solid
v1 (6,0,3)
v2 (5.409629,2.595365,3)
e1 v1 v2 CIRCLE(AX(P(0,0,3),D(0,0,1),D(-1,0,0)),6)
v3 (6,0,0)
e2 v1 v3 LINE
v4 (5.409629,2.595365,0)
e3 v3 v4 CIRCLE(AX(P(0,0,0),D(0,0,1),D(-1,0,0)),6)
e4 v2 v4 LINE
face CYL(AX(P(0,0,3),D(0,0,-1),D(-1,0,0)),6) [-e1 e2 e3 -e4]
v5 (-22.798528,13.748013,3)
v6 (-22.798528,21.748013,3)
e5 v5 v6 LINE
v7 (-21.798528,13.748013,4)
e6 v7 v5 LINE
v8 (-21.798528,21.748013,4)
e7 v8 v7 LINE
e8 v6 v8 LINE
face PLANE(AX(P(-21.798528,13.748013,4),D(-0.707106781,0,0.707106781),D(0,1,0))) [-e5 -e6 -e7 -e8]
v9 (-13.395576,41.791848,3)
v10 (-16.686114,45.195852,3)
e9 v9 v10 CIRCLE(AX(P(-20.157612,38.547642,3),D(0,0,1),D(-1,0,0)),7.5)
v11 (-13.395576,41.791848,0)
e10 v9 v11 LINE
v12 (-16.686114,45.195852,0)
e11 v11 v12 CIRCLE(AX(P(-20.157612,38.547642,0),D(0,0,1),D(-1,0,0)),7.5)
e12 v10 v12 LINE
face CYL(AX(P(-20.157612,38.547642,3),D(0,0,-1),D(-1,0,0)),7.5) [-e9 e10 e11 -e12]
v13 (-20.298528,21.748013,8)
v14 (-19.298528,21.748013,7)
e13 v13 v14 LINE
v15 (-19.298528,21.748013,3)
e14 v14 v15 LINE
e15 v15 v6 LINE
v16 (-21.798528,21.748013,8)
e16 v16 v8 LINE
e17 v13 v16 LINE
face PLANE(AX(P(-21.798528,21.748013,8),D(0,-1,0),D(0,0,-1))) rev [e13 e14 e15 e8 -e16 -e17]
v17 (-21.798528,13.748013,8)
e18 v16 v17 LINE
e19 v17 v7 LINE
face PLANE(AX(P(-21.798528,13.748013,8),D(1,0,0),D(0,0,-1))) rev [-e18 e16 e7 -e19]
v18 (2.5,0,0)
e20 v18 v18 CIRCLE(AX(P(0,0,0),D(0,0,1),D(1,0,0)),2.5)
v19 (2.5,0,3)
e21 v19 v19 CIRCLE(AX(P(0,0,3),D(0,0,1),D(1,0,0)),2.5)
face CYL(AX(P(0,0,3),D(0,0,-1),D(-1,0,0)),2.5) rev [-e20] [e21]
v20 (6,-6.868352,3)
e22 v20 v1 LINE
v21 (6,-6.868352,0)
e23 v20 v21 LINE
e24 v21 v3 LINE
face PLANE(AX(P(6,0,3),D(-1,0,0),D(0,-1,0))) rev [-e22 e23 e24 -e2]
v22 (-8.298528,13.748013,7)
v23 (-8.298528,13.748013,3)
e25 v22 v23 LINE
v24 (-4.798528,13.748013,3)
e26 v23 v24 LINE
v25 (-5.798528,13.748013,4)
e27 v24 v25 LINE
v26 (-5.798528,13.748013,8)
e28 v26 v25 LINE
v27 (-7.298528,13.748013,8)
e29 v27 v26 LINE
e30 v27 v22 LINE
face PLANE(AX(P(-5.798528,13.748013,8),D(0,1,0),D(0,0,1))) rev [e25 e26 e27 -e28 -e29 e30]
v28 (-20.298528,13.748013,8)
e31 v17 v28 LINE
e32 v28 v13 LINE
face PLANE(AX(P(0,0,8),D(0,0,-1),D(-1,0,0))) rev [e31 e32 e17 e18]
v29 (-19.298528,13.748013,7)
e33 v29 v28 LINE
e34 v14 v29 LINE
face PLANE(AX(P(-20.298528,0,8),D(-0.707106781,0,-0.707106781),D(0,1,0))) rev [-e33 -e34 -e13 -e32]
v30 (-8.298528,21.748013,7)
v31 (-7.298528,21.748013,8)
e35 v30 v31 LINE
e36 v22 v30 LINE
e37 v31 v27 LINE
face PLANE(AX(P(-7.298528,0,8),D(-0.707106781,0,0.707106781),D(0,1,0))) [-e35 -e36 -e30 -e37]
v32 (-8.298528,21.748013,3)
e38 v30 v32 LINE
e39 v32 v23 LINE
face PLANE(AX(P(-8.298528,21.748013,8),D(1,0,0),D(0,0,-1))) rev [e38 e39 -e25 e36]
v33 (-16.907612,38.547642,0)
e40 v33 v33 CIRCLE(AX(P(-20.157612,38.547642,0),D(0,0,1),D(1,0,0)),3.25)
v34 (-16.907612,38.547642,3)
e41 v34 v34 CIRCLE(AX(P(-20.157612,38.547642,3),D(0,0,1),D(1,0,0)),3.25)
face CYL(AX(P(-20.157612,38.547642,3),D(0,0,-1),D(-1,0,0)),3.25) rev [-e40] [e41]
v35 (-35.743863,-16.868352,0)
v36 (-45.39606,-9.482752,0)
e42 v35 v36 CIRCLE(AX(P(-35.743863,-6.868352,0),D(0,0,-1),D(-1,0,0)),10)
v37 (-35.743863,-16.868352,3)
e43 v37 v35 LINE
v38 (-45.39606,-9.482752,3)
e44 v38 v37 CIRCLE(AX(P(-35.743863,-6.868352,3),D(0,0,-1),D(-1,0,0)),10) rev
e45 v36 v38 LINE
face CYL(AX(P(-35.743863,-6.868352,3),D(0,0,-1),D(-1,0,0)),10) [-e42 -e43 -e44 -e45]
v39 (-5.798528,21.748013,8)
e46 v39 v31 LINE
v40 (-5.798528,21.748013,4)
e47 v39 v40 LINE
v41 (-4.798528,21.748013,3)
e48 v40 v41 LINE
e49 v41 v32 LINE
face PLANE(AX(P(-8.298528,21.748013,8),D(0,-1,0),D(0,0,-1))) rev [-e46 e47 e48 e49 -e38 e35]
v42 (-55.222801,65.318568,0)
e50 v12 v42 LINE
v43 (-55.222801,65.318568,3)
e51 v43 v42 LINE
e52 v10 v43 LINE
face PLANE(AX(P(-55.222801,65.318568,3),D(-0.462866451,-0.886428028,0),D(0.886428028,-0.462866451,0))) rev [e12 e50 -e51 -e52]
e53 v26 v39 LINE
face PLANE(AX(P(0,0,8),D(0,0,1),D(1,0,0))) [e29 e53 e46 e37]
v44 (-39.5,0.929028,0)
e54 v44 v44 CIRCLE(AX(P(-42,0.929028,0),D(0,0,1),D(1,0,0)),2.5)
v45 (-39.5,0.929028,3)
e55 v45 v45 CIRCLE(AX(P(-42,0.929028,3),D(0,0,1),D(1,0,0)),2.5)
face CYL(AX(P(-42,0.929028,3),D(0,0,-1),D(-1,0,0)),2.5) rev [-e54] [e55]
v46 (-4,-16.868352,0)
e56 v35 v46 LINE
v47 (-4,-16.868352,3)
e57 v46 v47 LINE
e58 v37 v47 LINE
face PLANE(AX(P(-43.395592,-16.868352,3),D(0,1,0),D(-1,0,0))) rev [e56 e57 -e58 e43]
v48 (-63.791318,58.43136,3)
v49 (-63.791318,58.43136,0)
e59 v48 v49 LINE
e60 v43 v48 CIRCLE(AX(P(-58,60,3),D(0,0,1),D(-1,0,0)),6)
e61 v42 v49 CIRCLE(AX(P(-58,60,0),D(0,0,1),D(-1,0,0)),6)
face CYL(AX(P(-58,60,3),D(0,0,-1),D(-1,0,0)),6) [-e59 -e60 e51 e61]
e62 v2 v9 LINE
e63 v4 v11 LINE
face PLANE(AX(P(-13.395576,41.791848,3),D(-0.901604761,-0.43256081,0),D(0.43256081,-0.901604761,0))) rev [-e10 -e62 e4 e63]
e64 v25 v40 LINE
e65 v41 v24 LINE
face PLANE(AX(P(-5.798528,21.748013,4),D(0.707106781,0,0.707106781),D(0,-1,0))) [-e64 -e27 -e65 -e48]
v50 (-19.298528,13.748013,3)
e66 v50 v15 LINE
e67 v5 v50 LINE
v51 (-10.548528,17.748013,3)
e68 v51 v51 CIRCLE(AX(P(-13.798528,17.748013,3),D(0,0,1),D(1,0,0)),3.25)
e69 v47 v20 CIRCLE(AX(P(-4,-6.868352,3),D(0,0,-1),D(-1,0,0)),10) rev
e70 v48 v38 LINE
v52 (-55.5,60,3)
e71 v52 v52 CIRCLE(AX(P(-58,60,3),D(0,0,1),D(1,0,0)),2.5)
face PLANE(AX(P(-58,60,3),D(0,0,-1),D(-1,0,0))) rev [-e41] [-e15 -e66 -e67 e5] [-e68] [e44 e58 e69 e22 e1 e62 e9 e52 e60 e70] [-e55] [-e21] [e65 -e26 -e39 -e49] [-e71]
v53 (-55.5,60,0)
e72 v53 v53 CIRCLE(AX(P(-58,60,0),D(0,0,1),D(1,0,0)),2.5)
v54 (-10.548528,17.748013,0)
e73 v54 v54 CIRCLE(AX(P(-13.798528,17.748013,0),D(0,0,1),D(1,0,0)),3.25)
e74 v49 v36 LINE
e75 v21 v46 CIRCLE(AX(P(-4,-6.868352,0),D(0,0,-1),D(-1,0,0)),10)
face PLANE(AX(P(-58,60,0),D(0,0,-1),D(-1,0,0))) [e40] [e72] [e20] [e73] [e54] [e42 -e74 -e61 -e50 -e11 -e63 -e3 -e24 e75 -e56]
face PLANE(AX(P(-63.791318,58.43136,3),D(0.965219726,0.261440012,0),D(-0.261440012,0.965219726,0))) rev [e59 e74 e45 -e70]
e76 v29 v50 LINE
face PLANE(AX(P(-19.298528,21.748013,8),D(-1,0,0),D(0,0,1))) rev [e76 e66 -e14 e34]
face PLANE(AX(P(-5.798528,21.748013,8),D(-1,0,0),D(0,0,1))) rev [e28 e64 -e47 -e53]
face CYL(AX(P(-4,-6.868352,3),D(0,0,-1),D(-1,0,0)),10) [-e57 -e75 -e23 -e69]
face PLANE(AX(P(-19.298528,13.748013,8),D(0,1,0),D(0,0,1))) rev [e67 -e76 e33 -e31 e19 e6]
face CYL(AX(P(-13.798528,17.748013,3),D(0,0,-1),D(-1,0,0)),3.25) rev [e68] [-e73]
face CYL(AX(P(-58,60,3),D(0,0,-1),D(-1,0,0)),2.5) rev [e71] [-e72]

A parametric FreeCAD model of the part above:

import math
import FreeCAD as App
import Part
import Sketcher
from FreeCAD import Vector


def edges_at(feature, points):
    """Names of the edges that pass closest to the given points."""
    edges = feature.Shape.Edges
    near = lambda p: min(range(len(edges)), key=lambda i: edges[i].distToShape(Part.Vertex(*p))[0])
    return sorted({f"Edge{near(p) + 1}" for p in points})

doc = App.newDocument("Part")
body = doc.addObject("PartDesign::Body", "Body")

sketch1 = body.newObject("Sketcher::SketchObject", "Sketch")
sketch1.AttachmentSupport = (doc.getObject("XY_Plane"), [""])
sketch1.MapMode = "FlatFace"
sketch1.addGeometry(Part.LineSegment(Vector(-63.8, 58.4, 0), Vector(-43.4, -16.9, 0)), False)
sketch1.addGeometry(Part.LineSegment(Vector(-43.4, -16.9, 0), Vector(6, -16.9, 0)), False)
sketch1.addGeometry(Part.LineSegment(Vector(6, -16.9, 0), Vector(6, 0, 0)), False)
sketch1.addGeometry(Part.ArcOfCircle(Part.Circle(Vector(0, 0, 0), Vector(0, 0, 1), 6), math.radians(0), math.radians(26)), False)
sketch1.addGeometry(Part.LineSegment(Vector(5.4, 2.6, 0), Vector(-13.4, 41.8, 0)), False)
sketch1.addGeometry(Part.ArcOfCircle(Part.Circle(Vector(-20.2, 38.5, 0), Vector(0, 0, 1), 7.5), math.radians(26), math.radians(62)), False)
sketch1.addGeometry(Part.LineSegment(Vector(-16.7, 45.2, 0), Vector(-55.2, 65.3, 0)), False)
sketch1.addGeometry(Part.ArcOfCircle(Part.Circle(Vector(-58, 60, 0), Vector(0, 0, 1), 6), math.radians(62), math.radians(195)), False)
sketch1.addGeometry(Part.Circle(Vector(-42, 0.9, 0), Vector(0, 0, 1), 2.5), False)
sketch1.addGeometry(Part.Circle(Vector(0, 0, 0), Vector(0, 0, 1), 2.5), False)
sketch1.addGeometry(Part.Circle(Vector(-13.8, 17.7, 0), Vector(0, 0, 1), 3.2), False)
sketch1.addGeometry(Part.Circle(Vector(-58, 60, 0), Vector(0, 0, 1), 2.5), False)
sketch1.addGeometry(Part.Circle(Vector(-20.2, 38.5, 0), Vector(0, 0, 1), 3.2), False)
sketch1.addConstraint(Sketcher.Constraint("Coincident", 0, 2, 1, 1))
sketch1.addConstraint(Sketcher.Constraint("Coincident", 1, 2, 2, 1))
sketch1.addConstraint(Sketcher.Constraint("Tangent", 2, 2, 3, 1))
sketch1.addConstraint(Sketcher.Constraint("Tangent", 3, 2, 4, 1))
sketch1.addConstraint(Sketcher.Constraint("Tangent", 4, 2, 5, 1))
sketch1.addConstraint(Sketcher.Constraint("Tangent", 5, 2, 6, 1))
sketch1.addConstraint(Sketcher.Constraint("Tangent", 6, 2, 7, 1))
sketch1.addConstraint(Sketcher.Constraint("Tangent", 7, 2, 0, 1))
sketch1.addConstraint(Sketcher.Constraint("Horizontal", 1))
sketch1.addConstraint(Sketcher.Constraint("Vertical", 2))
sketch1.addConstraint(Sketcher.Constraint("Coincident", 3, 3, -1, 1))
sketch1.addConstraint(Sketcher.Constraint("Coincident", 9, 3, -1, 1))
sketch1.addConstraint(Sketcher.Constraint("Coincident", 11, 3, 7, 3))
sketch1.addConstraint(Sketcher.Constraint("Coincident", 12, 3, 5, 3))
sketch1.addConstraint(Sketcher.Constraint("Equal", 3, 7))
sketch1.addConstraint(Sketcher.Constraint("Equal", 8, 9))
sketch1.addConstraint(Sketcher.Constraint("Equal", 9, 11))
sketch1.addConstraint(Sketcher.Constraint("Equal", 10, 12))
sketch1.addConstraint(Sketcher.Constraint("Equal", 4, 6))
sketch1.addConstraint(Sketcher.Constraint("Diameter", 8, 5.0))
sketch1.addConstraint(Sketcher.Constraint("Radius", 3, 6.0))
sketch1.addConstraint(Sketcher.Constraint("Diameter", 10, 6.5))
sketch1.addConstraint(Sketcher.Constraint("Radius", 5, 7.5))
sketch1.addConstraint(Sketcher.Constraint("DistanceX", 7, 3, -1, 1, 58.0))
sketch1.addConstraint(Sketcher.Constraint("DistanceY", -1, 1, 7, 3, 60.0))
sketch1.addConstraint(Sketcher.Constraint("DistanceX", 8, 3, -1, 1, 42.0))
sketch1.addConstraint(Sketcher.Constraint("DistanceX", 1, 1, 1, 2, 49.395592))
sketch1.addConstraint(Sketcher.Constraint("DistanceX", 6, 2, -1, 1, 55.222801))
sketch1.addConstraint(Sketcher.Constraint("DistanceY", 2, 1, 2, 2, 16.868352))
sketch1.addConstraint(Sketcher.Constraint("DistanceY", 10, 3, 5, 3, 20.799628))
sketch1.addConstraint(Sketcher.Constraint("DistanceY", 0, 2, 8, 3, 17.79738))
sketch1.addConstraint(Sketcher.Constraint("DistanceX", 10, 3, 4, 2, 0.402951))
pad1 = body.newObject("PartDesign::Pad", "Pad")
pad1.Profile = sketch1
pad1.Length = 3

sketch2 = body.newObject("Sketcher::SketchObject", "Sketch001")
sketch2.AttachmentSupport = (doc.getObject("XY_Plane"), [""])
sketch2.MapMode = "FlatFace"
sketch2.AttachmentOffset = App.Placement(Vector(0, 0, 3), App.Rotation())
sketch2.addGeometry(Part.LineSegment(Vector(-8.3, 21.7, 0), Vector(-8.3, 13.7, 0)), False)
sketch2.addGeometry(Part.LineSegment(Vector(-8.3, 13.7, 0), Vector(-5.8, 13.7, 0)), False)
sketch2.addGeometry(Part.LineSegment(Vector(-5.8, 13.7, 0), Vector(-5.8, 21.7, 0)), False)
sketch2.addGeometry(Part.LineSegment(Vector(-5.8, 21.7, 0), Vector(-8.3, 21.7, 0)), False)
sketch2.addGeometry(Part.LineSegment(Vector(-21.8, 21.7, 0), Vector(-21.8, 13.7, 0)), False)
sketch2.addGeometry(Part.LineSegment(Vector(-21.8, 13.7, 0), Vector(-19.3, 13.7, 0)), False)
sketch2.addGeometry(Part.LineSegment(Vector(-19.3, 13.7, 0), Vector(-19.3, 21.7, 0)), False)
sketch2.addGeometry(Part.LineSegment(Vector(-19.3, 21.7, 0), Vector(-21.8, 21.7, 0)), False)
sketch2.addConstraint(Sketcher.Constraint("Coincident", 0, 2, 1, 1))
sketch2.addConstraint(Sketcher.Constraint("Coincident", 1, 2, 2, 1))
sketch2.addConstraint(Sketcher.Constraint("Coincident", 2, 2, 3, 1))
sketch2.addConstraint(Sketcher.Constraint("Coincident", 3, 2, 0, 1))
sketch2.addConstraint(Sketcher.Constraint("Coincident", 4, 2, 5, 1))
sketch2.addConstraint(Sketcher.Constraint("Coincident", 5, 2, 6, 1))
sketch2.addConstraint(Sketcher.Constraint("Coincident", 6, 2, 7, 1))
sketch2.addConstraint(Sketcher.Constraint("Coincident", 7, 2, 4, 1))
sketch2.addConstraint(Sketcher.Constraint("Vertical", 0))
sketch2.addConstraint(Sketcher.Constraint("Horizontal", 1))
sketch2.addConstraint(Sketcher.Constraint("Vertical", 2))
sketch2.addConstraint(Sketcher.Constraint("Horizontal", 3))
sketch2.addConstraint(Sketcher.Constraint("Vertical", 4))
sketch2.addConstraint(Sketcher.Constraint("Horizontal", 5))
sketch2.addConstraint(Sketcher.Constraint("Vertical", 6))
sketch2.addConstraint(Sketcher.Constraint("Horizontal", 7))
sketch2.addConstraint(Sketcher.Constraint("Horizontal", 1, 2, 4, 2))
sketch2.addConstraint(Sketcher.Constraint("Horizontal", 3, 2, 6, 2))
sketch2.addConstraint(Sketcher.Constraint("Equal", 3, 5))
sketch2.addConstraint(Sketcher.Constraint("DistanceY", 0, 2, 0, 1, 8.0))
sketch2.addConstraint(Sketcher.Constraint("DistanceX", 1, 1, 1, 2, 2.5))
sketch2.addConstraint(Sketcher.Constraint("DistanceX", 4, 2, 1, 2, 16.0))
sketch2.addConstraint(Sketcher.Constraint("DistanceX", 0, 2, -1, 1, 8.298528))
sketch2.addConstraint(Sketcher.Constraint("DistanceY", -1, 1, 0, 2, 13.748013))
pad2 = body.newObject("PartDesign::Pad", "Pad001")
pad2.Profile = sketch2
pad2.Length = 5
doc.recompute()

chamfer = body.newObject("PartDesign::Chamfer", "Chamfer")
chamfer.Base = (pad2, edges_at(pad2, [
    (-5.799, 17.748, 3),
    (-8.299, 17.748, 8),
    (-21.799, 17.748, 3),
    (-19.299, 17.748, 8),
]))
chamfer.Size = 1
doc.recompute()

fillet = body.newObject("PartDesign::Fillet", "Fillet")
fillet.Base = (chamfer, edges_at(chamfer, [(6, -16.868, 1.5), (-43.396, -16.868, 1.5)]))
fillet.Radius = 10

doc.recompute()
